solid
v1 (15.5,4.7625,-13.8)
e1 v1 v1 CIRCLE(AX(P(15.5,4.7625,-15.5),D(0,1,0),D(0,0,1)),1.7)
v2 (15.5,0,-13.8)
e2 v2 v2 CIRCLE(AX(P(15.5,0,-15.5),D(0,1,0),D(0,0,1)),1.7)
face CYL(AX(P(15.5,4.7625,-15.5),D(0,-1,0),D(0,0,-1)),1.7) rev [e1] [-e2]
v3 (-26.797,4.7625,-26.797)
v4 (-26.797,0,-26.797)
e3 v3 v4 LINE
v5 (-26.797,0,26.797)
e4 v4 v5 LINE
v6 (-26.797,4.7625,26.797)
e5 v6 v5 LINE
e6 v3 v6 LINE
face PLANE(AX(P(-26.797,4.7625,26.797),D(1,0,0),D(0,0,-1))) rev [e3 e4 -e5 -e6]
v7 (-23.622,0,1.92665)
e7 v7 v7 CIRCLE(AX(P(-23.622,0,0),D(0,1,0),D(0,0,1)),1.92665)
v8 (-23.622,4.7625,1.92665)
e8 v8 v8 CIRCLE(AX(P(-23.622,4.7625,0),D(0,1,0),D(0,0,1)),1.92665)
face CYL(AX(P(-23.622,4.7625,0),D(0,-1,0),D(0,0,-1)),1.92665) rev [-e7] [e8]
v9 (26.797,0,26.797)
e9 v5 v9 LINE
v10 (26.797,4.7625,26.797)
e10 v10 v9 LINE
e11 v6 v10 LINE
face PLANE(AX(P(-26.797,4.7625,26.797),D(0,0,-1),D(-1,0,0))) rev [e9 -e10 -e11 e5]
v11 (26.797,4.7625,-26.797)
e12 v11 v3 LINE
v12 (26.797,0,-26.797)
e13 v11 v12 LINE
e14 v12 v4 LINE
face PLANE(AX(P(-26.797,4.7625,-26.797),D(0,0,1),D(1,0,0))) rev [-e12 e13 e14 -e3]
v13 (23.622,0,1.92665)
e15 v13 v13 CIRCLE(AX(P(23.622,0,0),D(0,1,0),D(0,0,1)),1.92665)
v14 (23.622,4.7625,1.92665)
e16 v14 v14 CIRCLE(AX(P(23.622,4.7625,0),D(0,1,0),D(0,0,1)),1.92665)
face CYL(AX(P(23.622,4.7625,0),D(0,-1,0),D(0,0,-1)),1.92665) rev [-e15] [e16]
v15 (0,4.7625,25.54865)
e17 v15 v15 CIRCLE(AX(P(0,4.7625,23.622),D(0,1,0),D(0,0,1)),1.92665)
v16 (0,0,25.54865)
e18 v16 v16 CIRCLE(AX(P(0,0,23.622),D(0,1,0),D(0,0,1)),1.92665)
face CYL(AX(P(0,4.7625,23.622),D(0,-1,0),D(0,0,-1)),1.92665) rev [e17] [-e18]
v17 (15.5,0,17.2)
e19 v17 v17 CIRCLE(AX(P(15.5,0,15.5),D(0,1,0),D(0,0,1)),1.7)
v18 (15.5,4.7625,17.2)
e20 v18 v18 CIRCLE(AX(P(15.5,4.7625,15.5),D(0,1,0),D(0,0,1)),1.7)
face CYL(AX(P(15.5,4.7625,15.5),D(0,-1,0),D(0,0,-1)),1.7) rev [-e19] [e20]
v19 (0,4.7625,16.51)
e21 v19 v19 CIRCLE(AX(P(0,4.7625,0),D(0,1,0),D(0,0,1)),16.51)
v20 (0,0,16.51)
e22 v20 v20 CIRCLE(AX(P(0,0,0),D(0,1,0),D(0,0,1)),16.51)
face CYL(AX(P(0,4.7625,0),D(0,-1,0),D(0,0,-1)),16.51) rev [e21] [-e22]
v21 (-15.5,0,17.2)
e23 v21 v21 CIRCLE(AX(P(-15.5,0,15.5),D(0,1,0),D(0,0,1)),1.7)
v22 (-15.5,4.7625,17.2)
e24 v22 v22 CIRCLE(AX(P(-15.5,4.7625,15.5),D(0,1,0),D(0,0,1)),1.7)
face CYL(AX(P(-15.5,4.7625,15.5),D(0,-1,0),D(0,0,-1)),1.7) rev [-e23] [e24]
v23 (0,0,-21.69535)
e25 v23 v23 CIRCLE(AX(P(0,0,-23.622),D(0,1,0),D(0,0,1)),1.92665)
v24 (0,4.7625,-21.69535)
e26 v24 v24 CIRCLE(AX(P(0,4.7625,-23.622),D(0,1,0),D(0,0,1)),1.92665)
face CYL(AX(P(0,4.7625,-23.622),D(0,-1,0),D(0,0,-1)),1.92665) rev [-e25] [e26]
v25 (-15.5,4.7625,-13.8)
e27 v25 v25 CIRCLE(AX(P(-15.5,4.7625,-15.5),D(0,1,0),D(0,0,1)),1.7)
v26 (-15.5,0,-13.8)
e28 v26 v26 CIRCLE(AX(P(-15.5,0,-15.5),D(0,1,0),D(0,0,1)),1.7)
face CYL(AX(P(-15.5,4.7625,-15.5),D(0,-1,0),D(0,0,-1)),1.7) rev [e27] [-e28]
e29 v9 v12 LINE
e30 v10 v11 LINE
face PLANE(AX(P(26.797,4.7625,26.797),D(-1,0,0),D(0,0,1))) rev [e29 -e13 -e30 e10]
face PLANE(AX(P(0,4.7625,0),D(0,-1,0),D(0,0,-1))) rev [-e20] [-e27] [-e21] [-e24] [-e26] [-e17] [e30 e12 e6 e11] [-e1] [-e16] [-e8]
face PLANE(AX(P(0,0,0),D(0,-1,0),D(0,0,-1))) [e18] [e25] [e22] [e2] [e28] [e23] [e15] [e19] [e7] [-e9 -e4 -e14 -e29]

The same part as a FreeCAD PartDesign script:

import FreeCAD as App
import Part
import Sketcher
Q = App.Units.Quantity

doc = App.newDocument("Part")
body = doc.addObject("PartDesign::Body", "Body")

# Sketch on XZ plane
sketch1 = body.newObject("Sketcher::SketchObject", "Sketch")
sketch1.AttachmentSupport = (doc.getObject("XZ_Plane"), [""])
sketch1.MapMode = "FlatFace"
sketch1.addGeometry([
    Part.LineSegment(App.Vector(-26.797, -26.797, 0), App.Vector(-26.797, 26.797, 0)),  # 0
    Part.LineSegment(App.Vector(-26.797, 26.797, 0), App.Vector(26.797, 26.797, 0)),  # 1
    Part.LineSegment(App.Vector(26.797, 26.797, 0), App.Vector(26.797, -26.797, 0)),  # 2
    Part.LineSegment(App.Vector(26.797, -26.797, 0), App.Vector(-26.797, -26.797, 0)),  # 3
    Part.Circle(App.Vector(-15.5, 15.5, 0), App.Vector(0, 0, 1), 1.7),  # 4
    Part.Circle(App.Vector(0, 23.622, 0), App.Vector(0, 0, 1), 1.92665),  # 5
    Part.Circle(App.Vector(15.5, 15.5, 0), App.Vector(0, 0, 1), 1.7),  # 6
    Part.Circle(App.Vector(-23.622, 0, 0), App.Vector(0, 0, 1), 1.92665),  # 7
    Part.Circle(App.Vector(-15.5, -15.5, 0), App.Vector(0, 0, 1), 1.7),  # 8
    Part.Circle(App.Vector(0, 0, 0), App.Vector(0, 0, 1), 16.51),  # 9
    Part.Circle(App.Vector(23.622, 0, 0), App.Vector(0, 0, 1), 1.92665),  # 10
    Part.Circle(App.Vector(0, -23.622, 0), App.Vector(0, 0, 1), 1.92665),  # 11
    Part.Circle(App.Vector(15.5, -15.5, 0), App.Vector(0, 0, 1), 1.7),  # 12
], False)
sketch1.addConstraint([
    Sketcher.Constraint("Coincident", 0, 2, 1, 1),
    Sketcher.Constraint("Coincident", 1, 2, 2, 1),
    Sketcher.Constraint("Coincident", 2, 2, 3, 1),
    Sketcher.Constraint("Coincident", 3, 2, 0, 1),
    Sketcher.Constraint("Vertical", 0),
    Sketcher.Constraint("Horizontal", 1),
    Sketcher.Constraint("Vertical", 2),
    Sketcher.Constraint("Horizontal", 3),
    Sketcher.Constraint("Coincident", 9, 3, -1, 1),
    Sketcher.Constraint("Equal", 4, 6),
    Sketcher.Constraint("Equal", 5, 7),
    Sketcher.Constraint("Equal", 6, 8),
    Sketcher.Constraint("Equal", 7, 10),
    Sketcher.Constraint("Equal", 10, 11),
    Sketcher.Constraint("Equal", 8, 12),
    Sketcher.Constraint("Symmetric", 6, 3, 8, 3, -1, 1),
    Sketcher.Constraint("Symmetric", 7, 3, 10, 3, -1, 1),
    Sketcher.Constraint("Symmetric", 5, 3, 11, 3, -1, 1),
    Sketcher.Constraint("Symmetric", 4, 3, 12, 3, -1, 1),
    Sketcher.Constraint("Symmetric", 0, 2, 2, 2, -1, 1),
    Sketcher.Constraint("Symmetric", 4, 3, 6, 3, -2),
    Sketcher.Constraint("PointOnObject", 5, 3, -2),
    Sketcher.Constraint("PointOnObject", 7, 3, -1),
    Sketcher.Constraint("Equal", 3, 0),
    Sketcher.Constraint("Diameter", 9, Q("1.3 in")),
    Sketcher.Constraint("DistanceX", 1, 1, 1, 2, Q("2.11 in")),
    Sketcher.Constraint("Diameter", 4, Q("3.4 mm")),
    Sketcher.Constraint("Diameter", 5, Q("3.853299 mm")),
    Sketcher.Constraint("DistanceY", -1, 1, 5, 3, Q("0.93 in")),
    Sketcher.Constraint("DistanceX", 7, 3, -1, 1, Q("0.93 in")),
    Sketcher.Constraint("DistanceX", 4, 3, -1, 1, Q("15.5 mm")),
    Sketcher.Constraint("DistanceY", -1, 1, 4, 3, Q("15.5 mm")),
])
pad1 = body.newObject("PartDesign::Pad", "Pad")
pad1.Profile = sketch1
pad1.Length = Q("0.1875 in")
pad1.Reversed = True

doc.recompute()
